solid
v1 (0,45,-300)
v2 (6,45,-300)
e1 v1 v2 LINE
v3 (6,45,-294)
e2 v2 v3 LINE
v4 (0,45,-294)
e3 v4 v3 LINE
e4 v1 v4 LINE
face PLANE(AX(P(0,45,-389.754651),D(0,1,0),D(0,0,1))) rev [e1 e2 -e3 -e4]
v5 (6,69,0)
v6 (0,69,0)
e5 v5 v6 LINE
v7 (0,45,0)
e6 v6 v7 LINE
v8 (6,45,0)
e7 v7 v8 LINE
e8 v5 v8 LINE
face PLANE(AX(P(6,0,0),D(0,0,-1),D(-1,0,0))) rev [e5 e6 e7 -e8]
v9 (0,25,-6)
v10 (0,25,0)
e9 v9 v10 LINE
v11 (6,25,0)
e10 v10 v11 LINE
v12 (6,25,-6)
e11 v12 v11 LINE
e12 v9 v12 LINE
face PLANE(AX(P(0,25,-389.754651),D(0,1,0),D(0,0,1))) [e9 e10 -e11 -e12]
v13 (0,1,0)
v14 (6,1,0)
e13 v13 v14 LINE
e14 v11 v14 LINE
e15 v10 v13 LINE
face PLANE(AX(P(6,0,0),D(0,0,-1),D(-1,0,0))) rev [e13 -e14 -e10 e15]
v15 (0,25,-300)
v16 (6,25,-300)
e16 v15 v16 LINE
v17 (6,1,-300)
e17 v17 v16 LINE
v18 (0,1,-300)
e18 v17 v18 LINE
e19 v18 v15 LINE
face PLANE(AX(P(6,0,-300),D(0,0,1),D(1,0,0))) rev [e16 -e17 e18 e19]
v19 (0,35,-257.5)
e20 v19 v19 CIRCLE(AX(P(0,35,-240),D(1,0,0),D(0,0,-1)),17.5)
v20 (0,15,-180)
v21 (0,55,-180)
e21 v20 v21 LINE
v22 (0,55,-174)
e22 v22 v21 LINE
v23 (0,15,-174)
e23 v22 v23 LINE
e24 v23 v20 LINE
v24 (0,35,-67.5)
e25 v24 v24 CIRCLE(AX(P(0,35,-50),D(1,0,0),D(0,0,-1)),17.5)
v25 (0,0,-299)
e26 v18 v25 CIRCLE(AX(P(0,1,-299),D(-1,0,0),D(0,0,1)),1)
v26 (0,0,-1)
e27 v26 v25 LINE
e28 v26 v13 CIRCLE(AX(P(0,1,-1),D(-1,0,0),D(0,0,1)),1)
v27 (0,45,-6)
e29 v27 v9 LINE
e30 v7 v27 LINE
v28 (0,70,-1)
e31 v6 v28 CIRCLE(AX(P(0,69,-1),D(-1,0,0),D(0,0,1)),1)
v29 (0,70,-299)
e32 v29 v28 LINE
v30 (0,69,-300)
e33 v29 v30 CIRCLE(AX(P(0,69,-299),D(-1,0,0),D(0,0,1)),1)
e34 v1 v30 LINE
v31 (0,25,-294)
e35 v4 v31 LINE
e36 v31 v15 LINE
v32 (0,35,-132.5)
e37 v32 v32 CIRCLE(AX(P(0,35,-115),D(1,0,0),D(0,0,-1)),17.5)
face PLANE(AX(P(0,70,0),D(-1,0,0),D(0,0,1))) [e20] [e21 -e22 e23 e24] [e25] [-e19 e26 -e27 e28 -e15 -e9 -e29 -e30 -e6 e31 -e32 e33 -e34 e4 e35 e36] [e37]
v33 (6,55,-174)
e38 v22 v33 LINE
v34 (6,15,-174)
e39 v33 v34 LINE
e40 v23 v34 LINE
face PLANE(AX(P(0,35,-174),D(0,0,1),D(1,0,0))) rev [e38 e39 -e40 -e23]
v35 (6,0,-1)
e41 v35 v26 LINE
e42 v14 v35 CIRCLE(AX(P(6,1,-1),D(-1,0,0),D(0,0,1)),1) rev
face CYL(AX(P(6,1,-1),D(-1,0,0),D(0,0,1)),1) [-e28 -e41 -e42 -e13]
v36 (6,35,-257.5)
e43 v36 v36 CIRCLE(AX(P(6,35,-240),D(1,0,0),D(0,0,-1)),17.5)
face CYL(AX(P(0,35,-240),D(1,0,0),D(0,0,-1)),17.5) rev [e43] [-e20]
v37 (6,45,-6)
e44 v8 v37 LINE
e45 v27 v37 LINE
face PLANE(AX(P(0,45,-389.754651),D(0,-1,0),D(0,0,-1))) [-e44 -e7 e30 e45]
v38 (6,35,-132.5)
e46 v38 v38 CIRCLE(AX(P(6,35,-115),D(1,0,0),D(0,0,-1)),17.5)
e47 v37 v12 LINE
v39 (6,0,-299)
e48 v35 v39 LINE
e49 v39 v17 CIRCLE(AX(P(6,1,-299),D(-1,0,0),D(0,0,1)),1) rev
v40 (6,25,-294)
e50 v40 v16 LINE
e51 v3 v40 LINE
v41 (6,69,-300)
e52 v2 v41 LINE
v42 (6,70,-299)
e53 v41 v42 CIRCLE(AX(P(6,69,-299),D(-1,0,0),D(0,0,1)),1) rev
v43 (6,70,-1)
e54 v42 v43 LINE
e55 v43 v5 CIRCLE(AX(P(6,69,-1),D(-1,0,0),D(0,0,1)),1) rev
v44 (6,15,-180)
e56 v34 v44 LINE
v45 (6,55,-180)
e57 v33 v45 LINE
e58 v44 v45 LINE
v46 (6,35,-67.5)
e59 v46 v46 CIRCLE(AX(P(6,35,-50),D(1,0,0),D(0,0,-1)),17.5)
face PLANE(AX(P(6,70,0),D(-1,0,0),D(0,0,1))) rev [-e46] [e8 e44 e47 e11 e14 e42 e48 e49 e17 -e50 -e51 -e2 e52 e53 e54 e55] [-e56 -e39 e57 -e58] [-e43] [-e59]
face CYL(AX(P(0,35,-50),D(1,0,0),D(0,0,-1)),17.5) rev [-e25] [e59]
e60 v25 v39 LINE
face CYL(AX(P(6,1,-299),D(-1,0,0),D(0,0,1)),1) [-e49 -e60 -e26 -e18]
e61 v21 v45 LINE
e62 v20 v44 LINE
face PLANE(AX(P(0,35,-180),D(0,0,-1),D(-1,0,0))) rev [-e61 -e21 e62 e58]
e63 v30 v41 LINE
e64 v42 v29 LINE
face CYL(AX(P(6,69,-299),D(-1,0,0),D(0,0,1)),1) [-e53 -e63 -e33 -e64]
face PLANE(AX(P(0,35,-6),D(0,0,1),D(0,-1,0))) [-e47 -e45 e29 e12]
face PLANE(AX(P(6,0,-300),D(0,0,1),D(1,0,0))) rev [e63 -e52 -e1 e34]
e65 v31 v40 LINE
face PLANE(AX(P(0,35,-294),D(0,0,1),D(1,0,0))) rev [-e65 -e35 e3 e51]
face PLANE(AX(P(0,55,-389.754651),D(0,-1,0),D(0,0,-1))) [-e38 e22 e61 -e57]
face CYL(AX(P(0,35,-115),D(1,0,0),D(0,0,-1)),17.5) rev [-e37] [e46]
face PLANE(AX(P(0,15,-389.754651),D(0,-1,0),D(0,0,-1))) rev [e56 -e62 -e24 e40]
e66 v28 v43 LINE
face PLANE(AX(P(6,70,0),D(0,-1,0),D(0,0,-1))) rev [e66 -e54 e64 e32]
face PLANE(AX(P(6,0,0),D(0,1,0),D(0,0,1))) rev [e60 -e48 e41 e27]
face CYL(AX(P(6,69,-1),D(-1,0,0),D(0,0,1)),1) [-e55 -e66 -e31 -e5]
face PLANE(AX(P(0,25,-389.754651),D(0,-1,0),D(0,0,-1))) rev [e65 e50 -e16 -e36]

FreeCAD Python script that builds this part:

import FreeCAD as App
import Part
import Sketcher


def edges_at(feature, points):
    """Names of the edges that pass closest to the given points."""
    edges = feature.Shape.Edges
    near = lambda p: min(range(len(edges)), key=lambda i: edges[i].distToShape(Part.Vertex(*p))[0])
    return sorted({f"Edge{near(p) + 1}" for p in points})


def add_polygon(sketch, points):
    """Adds a closed chain of lines whose ends are joined by coincident constraints."""
    first, n = sketch.GeometryCount, len(points)
    for a, b in zip(points, points[1:] + points[:1]):
        sketch.addGeometry(Part.LineSegment(App.Vector(*a, 0), App.Vector(*b, 0)), False)
    for i in range(n):
        sketch.addConstraint(Sketcher.Constraint("Coincident", first + i, 2, first + (i + 1) % n, 1))

doc = App.newDocument("Part")
params = doc.addObject("Spreadsheet::Sheet", "Params")
for row, (alias, value) in enumerate([
    ("sketch1_width", "70 mm"),
    ("sketch1_height", "300 mm"),
    ("pad1_length", "6 mm"),
    ("sketch2_width", "40 mm"),
    ("sketch2_width2", "20 mm"),
    ("sketch2_height", "6 mm"),
    ("sketch3_diameter", "35 mm"),
    ("fillet_radius", "1 mm"),
], start=1):
    params.set(f"A{row}", alias)
    params.set(f"B{row}", "=" + value)
    params.setAlias(f"B{row}", alias)

body = doc.addObject("PartDesign::Body", "Body")

sketch1 = body.newObject("Sketcher::SketchObject", "Sketch")
sketch1.AttachmentSupport = (doc.getObject("YZ_Plane"), [""])
sketch1.MapMode = "FlatFace"
add_polygon(sketch1, [(70, 0), (0, 0), (0, -300), (70, -300)])
sketch1.addConstraint([
    Sketcher.Constraint("Horizontal", 0),
    Sketcher.Constraint("Vertical", 1),
    Sketcher.Constraint("Horizontal", 2),
    Sketcher.Constraint("Vertical", 3),
    Sketcher.Constraint("Coincident", 0, 2, -1, 1),
    Sketcher.Constraint("DistanceX", 0, 2, 0, 1, 70.0),
    Sketcher.Constraint("DistanceY", 1, 2, 1, 1, 300.0),
])
sketch1.setExpression("Constraints[9]", "Params.sketch1_width")
sketch1.setExpression("Constraints[10]", "Params.sketch1_height")
pad1 = body.newObject("PartDesign::Pad", "Pad")
pad1.Profile = sketch1
pad1.setExpression("Length", "Params.pad1_length")

sketch2 = body.newObject("Sketcher::SketchObject", "Sketch001")
sketch2.AttachmentSupport = (doc.getObject("YZ_Plane"), [""])
sketch2.MapMode = "FlatFace"
sketch2.AttachmentOffset = App.Placement(App.Vector(0, 0, 6), App.Rotation())
add_polygon(sketch2, [(55, -174), (15, -174), (15, -180), (55, -180)])
add_polygon(sketch2, [(45, -294), (25, -294), (25, -300), (45, -300)])
add_polygon(sketch2, [(45, 0), (25, 0), (25, -6), (45, -6)])
sketch2.addConstraint([
    Sketcher.Constraint("Horizontal", 0),
    Sketcher.Constraint("Vertical", 1),
    Sketcher.Constraint("Horizontal", 2),
    Sketcher.Constraint("Vertical", 3),
    Sketcher.Constraint("Horizontal", 4),
    Sketcher.Constraint("Vertical", 5),
    Sketcher.Constraint("Horizontal", 6),
    Sketcher.Constraint("Vertical", 7),
    Sketcher.Constraint("Horizontal", 8),
    Sketcher.Constraint("Vertical", 9),
    Sketcher.Constraint("Horizontal", 10),
    Sketcher.Constraint("Vertical", 11),
    Sketcher.Constraint("PointOnObject", 8, 2, -1),
    Sketcher.Constraint("Vertical", 5, 2, 8, 2),
    Sketcher.Constraint("Vertical", 7, 2, 10, 2),
    Sketcher.Constraint("Equal", 3, 5),
    Sketcher.Constraint("Equal", 7, 9),
    Sketcher.Constraint("DistanceX", 0, 2, 0, 1, 40.0),
    Sketcher.Constraint("DistanceX", 4, 2, 4, 1, 20.0),
    Sketcher.Constraint("DistanceY", 1, 2, 1, 1, 6.0),
    Sketcher.Constraint("DistanceX", -1, 1, 0, 2, 15.0),
    Sketcher.Constraint("DistanceY", 0, 2, -1, 1, 174.0),
    Sketcher.Constraint("DistanceX", -1, 1, 4, 2, 25.0),
    Sketcher.Constraint("DistanceY", 4, 2, -1, 1, 294.0),
])
sketch2.setExpression("Constraints[29]", "Params.sketch2_width")
sketch2.setExpression("Constraints[30]", "Params.sketch2_width2")
sketch2.setExpression("Constraints[31]", "Params.sketch2_height")
pocket1 = body.newObject("PartDesign::Pocket", "Pocket")
pocket1.Profile = sketch2
pocket1.Type = "ThroughAll"

sketch3 = body.newObject("Sketcher::SketchObject", "Sketch002")
sketch3.AttachmentSupport = (doc.getObject("YZ_Plane"), [""])
sketch3.MapMode = "FlatFace"
sketch3.AttachmentOffset = App.Placement(App.Vector(0, 0, 6), App.Rotation())
sketch3.addGeometry([
    Part.Circle(App.Vector(35, -50, 0), App.Vector(0, 0, 1), 18),
    Part.Circle(App.Vector(35, -115, 0), App.Vector(0, 0, 1), 18),
    Part.Circle(App.Vector(35, -240, 0), App.Vector(0, 0, 1), 18),
], False)
sketch3.addConstraint([
    Sketcher.Constraint("Equal", 0, 1),
    Sketcher.Constraint("Equal", 1, 2),
    Sketcher.Constraint("Vertical", 0, 3, 1, 3),
    Sketcher.Constraint("Vertical", 1, 3, 2, 3),
    Sketcher.Constraint("Diameter", 0, 35.0),
    Sketcher.Constraint("DistanceX", -1, 1, 0, 3, 35.0),
    Sketcher.Constraint("DistanceY", 0, 3, -1, 1, 50.0),
    Sketcher.Constraint("DistanceY", 1, 3, -1, 1, 115.0),
    Sketcher.Constraint("DistanceY", 2, 3, -1, 1, 240.0),
])
sketch3.setExpression("Constraints[4]", "Params.sketch3_diameter")
pocket2 = body.newObject("PartDesign::Pocket", "Pocket001")
pocket2.Profile = sketch3
pocket2.Type = "ThroughAll"
doc.recompute()

fillet = body.newObject("PartDesign::Fillet", "Fillet")
fillet.Base = (pocket2, edges_at(pocket2, [
    (3, 70, 0),
    (3, 70, -300),
    (3, 0, -300),
    (3, 0, 0),
]))
fillet.setExpression("Radius", "Params.fillet_radius")

doc.recompute()
